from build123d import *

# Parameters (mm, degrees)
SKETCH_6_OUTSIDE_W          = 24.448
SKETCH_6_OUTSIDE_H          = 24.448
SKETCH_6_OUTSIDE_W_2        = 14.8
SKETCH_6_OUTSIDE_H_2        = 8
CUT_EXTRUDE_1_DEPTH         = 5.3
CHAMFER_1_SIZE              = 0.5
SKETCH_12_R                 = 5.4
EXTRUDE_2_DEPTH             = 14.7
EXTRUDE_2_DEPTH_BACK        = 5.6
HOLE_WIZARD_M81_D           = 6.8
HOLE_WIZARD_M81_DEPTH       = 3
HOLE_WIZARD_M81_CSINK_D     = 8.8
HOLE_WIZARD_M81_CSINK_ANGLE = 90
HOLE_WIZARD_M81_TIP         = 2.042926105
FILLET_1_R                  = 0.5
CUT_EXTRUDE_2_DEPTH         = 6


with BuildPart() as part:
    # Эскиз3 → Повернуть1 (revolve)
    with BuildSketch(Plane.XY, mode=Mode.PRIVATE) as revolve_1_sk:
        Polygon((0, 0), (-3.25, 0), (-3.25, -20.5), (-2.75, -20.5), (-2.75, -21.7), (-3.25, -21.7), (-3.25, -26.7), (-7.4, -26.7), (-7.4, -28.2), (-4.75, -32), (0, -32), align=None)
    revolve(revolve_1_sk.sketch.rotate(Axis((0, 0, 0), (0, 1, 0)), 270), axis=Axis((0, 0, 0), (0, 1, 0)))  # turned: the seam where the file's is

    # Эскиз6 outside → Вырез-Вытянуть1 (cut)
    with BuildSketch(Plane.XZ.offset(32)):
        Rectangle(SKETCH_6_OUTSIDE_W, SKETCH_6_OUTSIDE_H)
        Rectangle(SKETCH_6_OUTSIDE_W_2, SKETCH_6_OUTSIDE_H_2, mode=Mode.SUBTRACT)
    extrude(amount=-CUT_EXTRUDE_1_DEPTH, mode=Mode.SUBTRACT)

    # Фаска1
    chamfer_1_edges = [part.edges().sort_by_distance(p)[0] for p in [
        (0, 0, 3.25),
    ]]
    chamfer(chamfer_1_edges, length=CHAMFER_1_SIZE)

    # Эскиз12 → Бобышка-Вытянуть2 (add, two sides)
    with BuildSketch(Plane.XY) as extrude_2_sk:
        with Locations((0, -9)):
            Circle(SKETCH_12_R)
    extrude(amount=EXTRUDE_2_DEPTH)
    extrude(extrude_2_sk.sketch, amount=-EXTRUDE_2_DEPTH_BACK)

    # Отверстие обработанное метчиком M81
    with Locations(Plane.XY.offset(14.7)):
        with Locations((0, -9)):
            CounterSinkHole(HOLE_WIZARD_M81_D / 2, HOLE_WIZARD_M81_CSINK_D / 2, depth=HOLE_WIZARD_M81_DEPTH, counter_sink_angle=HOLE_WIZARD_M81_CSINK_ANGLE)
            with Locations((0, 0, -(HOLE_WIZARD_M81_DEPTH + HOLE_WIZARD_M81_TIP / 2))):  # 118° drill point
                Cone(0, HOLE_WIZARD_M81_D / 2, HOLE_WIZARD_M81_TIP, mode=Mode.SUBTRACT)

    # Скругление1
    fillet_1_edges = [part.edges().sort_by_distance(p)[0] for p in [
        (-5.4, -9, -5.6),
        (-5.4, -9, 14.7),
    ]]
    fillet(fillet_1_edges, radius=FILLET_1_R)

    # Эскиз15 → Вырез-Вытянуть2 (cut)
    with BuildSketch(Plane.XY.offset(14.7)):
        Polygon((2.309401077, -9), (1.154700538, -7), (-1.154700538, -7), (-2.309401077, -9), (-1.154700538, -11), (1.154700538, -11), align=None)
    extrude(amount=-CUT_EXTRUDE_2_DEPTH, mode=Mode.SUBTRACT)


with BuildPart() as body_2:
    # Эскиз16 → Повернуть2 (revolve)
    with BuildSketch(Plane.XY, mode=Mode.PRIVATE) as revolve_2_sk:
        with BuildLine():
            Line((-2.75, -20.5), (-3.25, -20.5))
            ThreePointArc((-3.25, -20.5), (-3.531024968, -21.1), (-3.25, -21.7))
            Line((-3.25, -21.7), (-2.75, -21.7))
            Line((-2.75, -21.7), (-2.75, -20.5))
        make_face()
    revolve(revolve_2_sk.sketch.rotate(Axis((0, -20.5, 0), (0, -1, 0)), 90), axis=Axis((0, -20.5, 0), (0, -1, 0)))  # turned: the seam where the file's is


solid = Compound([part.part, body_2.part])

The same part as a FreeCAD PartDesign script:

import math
import FreeCAD as App
import Part
import Sketcher

V = App.Vector
Q = App.Units.Quantity


def edges_at(feature, points):
    """Names of the edges that pass closest to the given points."""
    edges = feature.Shape.Edges
    near = lambda p: min(range(len(edges)), key=lambda i: edges[i].distToShape(Part.Vertex(*p))[0])
    return sorted({f"Edge{near(p) + 1}" for p in points})


def add_polygon(sketch, points):
    """Adds a closed chain of lines whose ends are joined by coincident constraints."""
    first, n = sketch.GeometryCount, len(points)
    for a, b in zip(points, points[1:] + points[:1]):
        sketch.addGeometry(Part.LineSegment(App.Vector(*a, 0), App.Vector(*b, 0)), False)
    for i in range(n):
        sketch.addConstraint(Sketcher.Constraint("Coincident", first + i, 2, first + (i + 1) % n, 1))

doc = App.newDocument("Part")
body = doc.addObject("PartDesign::Body", "Body")

sketch1 = body.newObject("Sketcher::SketchObject", "Sketch")
sketch1.AttachmentSupport = (doc.getObject("XY_Plane"), [""])
sketch1.MapMode = "FlatFace"
add_polygon(sketch1, [(0, 0), (-3.2, 0), (-3.2, -20.5), (-2.8, -20.5), (-2.8, -21.7), (-3.2, -21.7), (-3.2, -26.7), (-7.4, -26.7), (-7.4, -28.2), (-4.8, -32), (0, -32)])
sketch1.addConstraint([
    Sketcher.Constraint("Horizontal", 0),
    Sketcher.Constraint("Vertical", 1),
    Sketcher.Constraint("Horizontal", 2),
    Sketcher.Constraint("Vertical", 3),
    Sketcher.Constraint("Horizontal", 4),
    Sketcher.Constraint("Vertical", 5),
    Sketcher.Constraint("Horizontal", 6),
    Sketcher.Constraint("Vertical", 7),
    Sketcher.Constraint("Horizontal", 9),
    Sketcher.Constraint("Vertical", 10),
    Sketcher.Constraint("Coincident", 10, 2, -1, 1),
    Sketcher.Constraint("Vertical", 1, 2, 4, 2),
    Sketcher.Constraint("DistanceY", 5, 2, 5, 1, 5.0),
    Sketcher.Constraint("DistanceY", 10, 1, 10, 2, 32.0),
    Sketcher.Constraint("DistanceX", 2, 1, 2, 2, 0.5),
    Sketcher.Constraint("DistanceY", 1, 2, 1, 1, 20.5),
    Sketcher.Constraint("DistanceY", 3, 2, 3, 1, 1.2),
    Sketcher.Constraint("DistanceY", 7, 2, 7, 1, 1.5),
    Sketcher.Constraint("DistanceX", 8, 2, 3, 2, 2.0),
    Sketcher.Constraint("DistanceX", 0, 2, 0, 1, 3.25),
    Sketcher.Constraint("DistanceX", 6, 2, 6, 1, 4.15),
])
revolution = body.newObject("PartDesign::Revolution", "Revolution")
revolution.Profile = sketch1
revolution.ReferenceAxis = (sketch1, ["V_Axis"])
revolution.Angle = 360

sketch2 = body.newObject("Sketcher::SketchObject", "Sketch001")
sketch2.AttachmentSupport = (doc.getObject("XZ_Plane"), [""])
sketch2.MapMode = "FlatFace"
sketch2.AttachmentOffset = App.Placement(V(0, 0, 32), App.Rotation())
add_polygon(sketch2, [(-12, 12), (-12, -12), (12, -12), (12, 12)])
add_polygon(sketch2, [(7, -4), (-7, -4), (-7, 4), (7, 4)])
sketch2.addConstraint([
    Sketcher.Constraint("Vertical", 0),
    Sketcher.Constraint("Horizontal", 1),
    Sketcher.Constraint("Vertical", 2),
    Sketcher.Constraint("Horizontal", 3),
    Sketcher.Constraint("Horizontal", 4),
    Sketcher.Constraint("Vertical", 5),
    Sketcher.Constraint("Horizontal", 6),
    Sketcher.Constraint("Vertical", 7),
    Sketcher.Constraint("Symmetric", 0, 2, 2, 2, -1, 1),
    Sketcher.Constraint("Symmetric", 4, 2, 6, 2, -1, 1),
    Sketcher.Constraint("Equal", 3, 0),
    Sketcher.Constraint("DistanceY", 5, 1, 5, 2, 8.0),
    Sketcher.Constraint("DistanceX", 4, 2, 4, 1, 14.8),
    Sketcher.Constraint("DistanceX", 1, 1, 1, 2, 24.448),
])
pocket1 = body.newObject("PartDesign::Pocket", "Pocket")
pocket1.Profile = sketch2
pocket1.Length = 5.3
doc.recompute()

chamfer = body.newObject("PartDesign::Chamfer", "Chamfer")
chamfer.Base = (pocket1, edges_at(pocket1, [(0, 0, 3.25)]))
chamfer.Size = 0.5

sketch3 = body.newObject("Sketcher::SketchObject", "Sketch002")
sketch3.AttachmentSupport = (doc.getObject("XY_Plane"), [""])
sketch3.MapMode = "FlatFace"
sketch3.addGeometry(Part.Circle(V(0, -9, 0), V(0, 0, 1), 5), False)
sketch3.addConstraint([
    Sketcher.Constraint("PointOnObject", 0, 3, -2),
    Sketcher.Constraint("Diameter", 0, 10.8),
    Sketcher.Constraint("DistanceY", 0, 3, -1, 1, 9.0),
])
pad1 = body.newObject("PartDesign::Pad", "Pad")
pad1.Profile = sketch3
pad1.Type = "TwoLengths"
pad1.Length = 14.7
pad1.Length2 = 5.6

sketch4 = body.newObject("Sketcher::SketchObject", "Sketch003")
sketch4.AttachmentSupport = (doc.getObject("XY_Plane"), [""])
sketch4.MapMode = "FlatFace"
sketch4.AttachmentOffset = App.Placement(V(0, 0, 14.7), App.Rotation())
sketch4.addGeometry(Part.Circle(V(0, -9, 0), V(0, 0, 1), 3.4), False)
sketch4.addConstraint([
    Sketcher.Constraint("PointOnObject", 0, 3, -2),
    Sketcher.Constraint("Diameter", 0, 6.8),
    Sketcher.Constraint("DistanceY", 0, 3, -1, 1, 9.0),
])
doc.recompute()
hole = body.newObject("PartDesign::Hole", "Hole")
hole.Profile = sketch4
hole.ThreadType = "None"
hole.Diameter = 6.8
hole.DepthType = "Dimension"
hole.Depth = 3
hole.DrillPoint = "Angled"
hole.DrillPointAngle = 118
hole.HoleCutType = "Countersink"
hole.HoleCutDiameter = 8.8
hole.HoleCutCountersinkAngle = 90
doc.recompute()

fillet = body.newObject("PartDesign::Fillet", "Fillet")
fillet.Base = (hole, edges_at(hole, [(-5.4, -9, -5.6), (-5.4, -9, 14.7)]))
fillet.Radius = 0.5

sketch5 = body.newObject("Sketcher::SketchObject", "Sketch004")
sketch5.AttachmentSupport = (doc.getObject("XY_Plane"), [""])
sketch5.MapMode = "FlatFace"
sketch5.AttachmentOffset = App.Placement(V(0, 0, 14.7), App.Rotation())
add_polygon(sketch5, [(2.3, -9), (1.2, -7), (-1.2, -7), (-2.3, -9), (-1.2, -11), (1.2, -11)])
sketch5.addConstraint([
    Sketcher.Constraint("Horizontal", 1),
    Sketcher.Constraint("Horizontal", 4),
    Sketcher.Constraint("Symmetric", 2, 2, 5, 2, -2),
    Sketcher.Constraint("Parallel", 0, 3),
    Sketcher.Constraint("Parallel", 2, 5),
    Sketcher.Constraint("Vertical", 1, 2, 3, 2),
    Sketcher.Constraint("Vertical", 0, 2, 4, 2),
    Sketcher.Constraint("Angle", 0, Q("120 deg")),
    Sketcher.Constraint("DistanceY", 0, 2, -1, 1, 7.0),
    Sketcher.Constraint("DistanceY", 2, 2, -1, 1, 9.0),
    Sketcher.Constraint("DistanceX", 1, 2, 1, 1, 2.309401),
])
pocket2 = body.newObject("PartDesign::Pocket", "Pocket001")
pocket2.Profile = sketch5
pocket2.Length = 6
body2 = doc.addObject("PartDesign::Body", "Body001")

sketch6 = body2.newObject("Sketcher::SketchObject", "Sketch005")
sketch6.AttachmentSupport = (doc.getObject("XY_Plane001"), [""])
sketch6.MapMode = "FlatFace"
sketch6.addGeometry([
    Part.LineSegment(V(-2.8, -20.5, 0), V(-3.2, -20.5, 0)),
    Part.ArcOfCircle(Part.Circle(V(-2.8, -21.1, 0), V(0, 0, 1), 0.8), math.radians(130), math.radians(230)),
    Part.LineSegment(V(-3.2, -21.7, 0), V(-2.8, -21.7, 0)),
    Part.LineSegment(V(-2.8, -21.7, 0), V(-2.8, -20.5, 0)),
], False)
sketch6.addConstraint([
    Sketcher.Constraint("Coincident", 0, 2, 1, 1),
    Sketcher.Constraint("Coincident", 1, 2, 2, 1),
    Sketcher.Constraint("Coincident", 2, 2, 3, 1),
    Sketcher.Constraint("Coincident", 3, 2, 0, 1),
    Sketcher.Constraint("Horizontal", 0),
    Sketcher.Constraint("Horizontal", 2),
    Sketcher.Constraint("Vertical", 3),
    Sketcher.Constraint("Vertical", 0, 2, 1, 2),
    Sketcher.Constraint("Vertical", 1, 3, 2, 2),
    Sketcher.Constraint("DistanceX", 0, 2, 0, 1, 0.5),
    Sketcher.Constraint("DistanceY", 3, 1, 3, 2, 1.2),
    Sketcher.Constraint("DistanceY", 1, 3, -1, 1, 21.1),
    Sketcher.Constraint("DistanceX", 1, 3, -1, 1, 2.75),
])
revolution2 = body2.newObject("PartDesign::Revolution", "Revolution001")
revolution2.Profile = sketch6
revolution2.ReferenceAxis = (sketch6, ["V_Axis"])
revolution2.Angle = 360

doc.recompute()
